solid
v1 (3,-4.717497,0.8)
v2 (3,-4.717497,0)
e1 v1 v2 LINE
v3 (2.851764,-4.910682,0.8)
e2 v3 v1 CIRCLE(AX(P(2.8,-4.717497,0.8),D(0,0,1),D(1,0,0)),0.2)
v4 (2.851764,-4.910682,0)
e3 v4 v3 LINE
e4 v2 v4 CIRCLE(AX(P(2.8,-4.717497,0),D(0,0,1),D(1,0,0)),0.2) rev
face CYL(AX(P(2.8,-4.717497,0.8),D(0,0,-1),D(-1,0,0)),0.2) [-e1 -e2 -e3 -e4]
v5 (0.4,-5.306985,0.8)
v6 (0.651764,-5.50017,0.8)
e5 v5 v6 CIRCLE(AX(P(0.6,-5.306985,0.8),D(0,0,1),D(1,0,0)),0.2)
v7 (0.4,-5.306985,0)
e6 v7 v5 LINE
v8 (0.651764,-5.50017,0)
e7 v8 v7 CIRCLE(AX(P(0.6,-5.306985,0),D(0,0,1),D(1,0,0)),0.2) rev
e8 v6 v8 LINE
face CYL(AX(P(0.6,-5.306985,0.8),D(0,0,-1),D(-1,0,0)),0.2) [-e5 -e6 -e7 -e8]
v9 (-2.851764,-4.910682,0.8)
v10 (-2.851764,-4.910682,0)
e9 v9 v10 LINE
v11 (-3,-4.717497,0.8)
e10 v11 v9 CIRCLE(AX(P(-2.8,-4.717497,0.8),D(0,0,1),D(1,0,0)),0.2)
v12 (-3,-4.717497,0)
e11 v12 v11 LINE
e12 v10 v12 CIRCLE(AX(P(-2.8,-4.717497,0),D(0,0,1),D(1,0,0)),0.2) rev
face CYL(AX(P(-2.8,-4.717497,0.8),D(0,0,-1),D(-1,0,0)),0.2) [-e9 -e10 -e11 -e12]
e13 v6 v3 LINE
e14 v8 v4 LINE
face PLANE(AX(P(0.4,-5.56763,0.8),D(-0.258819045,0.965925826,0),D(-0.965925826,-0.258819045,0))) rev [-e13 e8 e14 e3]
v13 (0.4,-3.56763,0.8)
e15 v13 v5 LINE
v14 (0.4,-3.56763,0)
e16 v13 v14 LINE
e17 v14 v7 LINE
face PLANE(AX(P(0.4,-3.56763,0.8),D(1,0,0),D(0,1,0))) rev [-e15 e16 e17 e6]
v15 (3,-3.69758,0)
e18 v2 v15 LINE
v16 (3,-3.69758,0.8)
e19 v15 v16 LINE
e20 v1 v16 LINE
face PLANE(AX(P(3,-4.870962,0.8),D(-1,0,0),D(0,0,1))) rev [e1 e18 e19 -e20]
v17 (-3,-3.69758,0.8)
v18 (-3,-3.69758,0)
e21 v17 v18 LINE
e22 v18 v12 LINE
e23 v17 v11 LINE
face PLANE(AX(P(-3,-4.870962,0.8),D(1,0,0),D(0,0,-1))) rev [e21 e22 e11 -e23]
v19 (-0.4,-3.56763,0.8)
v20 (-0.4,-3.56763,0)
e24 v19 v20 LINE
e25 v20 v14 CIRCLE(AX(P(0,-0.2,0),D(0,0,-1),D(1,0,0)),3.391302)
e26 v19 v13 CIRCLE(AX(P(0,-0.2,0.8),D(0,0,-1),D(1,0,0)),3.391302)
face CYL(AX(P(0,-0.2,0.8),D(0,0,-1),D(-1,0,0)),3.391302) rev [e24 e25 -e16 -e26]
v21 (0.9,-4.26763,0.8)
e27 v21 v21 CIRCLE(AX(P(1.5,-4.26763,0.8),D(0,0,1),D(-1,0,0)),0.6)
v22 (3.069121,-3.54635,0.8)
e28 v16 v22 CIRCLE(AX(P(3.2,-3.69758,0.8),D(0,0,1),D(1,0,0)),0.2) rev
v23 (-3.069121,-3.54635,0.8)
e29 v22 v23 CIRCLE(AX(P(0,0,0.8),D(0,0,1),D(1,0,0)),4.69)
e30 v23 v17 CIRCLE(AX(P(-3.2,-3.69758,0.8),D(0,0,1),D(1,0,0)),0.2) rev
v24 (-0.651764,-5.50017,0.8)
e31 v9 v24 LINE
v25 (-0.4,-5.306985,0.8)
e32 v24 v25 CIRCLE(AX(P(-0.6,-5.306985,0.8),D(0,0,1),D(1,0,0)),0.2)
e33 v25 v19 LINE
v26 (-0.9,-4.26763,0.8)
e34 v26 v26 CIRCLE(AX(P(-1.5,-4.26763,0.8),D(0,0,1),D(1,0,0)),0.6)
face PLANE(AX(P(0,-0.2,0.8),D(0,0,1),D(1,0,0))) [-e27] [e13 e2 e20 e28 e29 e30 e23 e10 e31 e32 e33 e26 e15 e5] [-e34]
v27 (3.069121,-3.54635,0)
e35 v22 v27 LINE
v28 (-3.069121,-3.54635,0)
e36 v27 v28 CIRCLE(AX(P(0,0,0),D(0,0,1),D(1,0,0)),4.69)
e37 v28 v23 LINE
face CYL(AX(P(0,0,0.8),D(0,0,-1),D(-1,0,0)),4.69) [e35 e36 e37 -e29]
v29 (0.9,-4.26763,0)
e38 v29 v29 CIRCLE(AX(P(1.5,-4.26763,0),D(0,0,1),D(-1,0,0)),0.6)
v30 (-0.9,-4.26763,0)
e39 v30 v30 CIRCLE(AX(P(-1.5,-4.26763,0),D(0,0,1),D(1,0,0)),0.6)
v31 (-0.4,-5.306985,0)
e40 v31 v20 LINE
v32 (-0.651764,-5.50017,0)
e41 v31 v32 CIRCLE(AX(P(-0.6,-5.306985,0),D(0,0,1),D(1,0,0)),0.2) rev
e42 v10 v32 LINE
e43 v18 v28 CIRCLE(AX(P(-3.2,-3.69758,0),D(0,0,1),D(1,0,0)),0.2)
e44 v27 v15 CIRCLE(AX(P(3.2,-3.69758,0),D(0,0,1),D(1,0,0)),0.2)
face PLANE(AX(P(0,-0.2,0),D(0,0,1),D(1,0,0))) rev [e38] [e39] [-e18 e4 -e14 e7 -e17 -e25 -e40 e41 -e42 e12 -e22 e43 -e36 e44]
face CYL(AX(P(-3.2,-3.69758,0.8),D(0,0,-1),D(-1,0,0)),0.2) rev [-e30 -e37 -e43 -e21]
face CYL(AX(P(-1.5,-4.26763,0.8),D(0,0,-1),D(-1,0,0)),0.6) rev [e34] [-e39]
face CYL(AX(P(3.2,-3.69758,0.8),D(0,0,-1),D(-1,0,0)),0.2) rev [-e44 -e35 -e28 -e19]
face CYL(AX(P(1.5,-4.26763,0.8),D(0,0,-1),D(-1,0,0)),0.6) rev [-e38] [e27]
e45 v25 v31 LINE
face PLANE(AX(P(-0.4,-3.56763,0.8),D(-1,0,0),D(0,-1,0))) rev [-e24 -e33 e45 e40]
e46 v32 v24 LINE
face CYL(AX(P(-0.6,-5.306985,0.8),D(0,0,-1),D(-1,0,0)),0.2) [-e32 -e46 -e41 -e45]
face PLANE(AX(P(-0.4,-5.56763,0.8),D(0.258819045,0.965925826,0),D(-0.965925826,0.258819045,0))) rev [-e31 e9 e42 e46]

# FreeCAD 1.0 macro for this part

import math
import FreeCAD as App
import Part
import Sketcher

V = App.Vector
Q = App.Units.Quantity


def edges_at(feature, points):
    """Names of the edges that pass closest to the given points."""
    edges = feature.Shape.Edges
    near = lambda p: min(range(len(edges)), key=lambda i: edges[i].distToShape(Part.Vertex(*p))[0])
    return sorted({f"Edge{near(p) + 1}" for p in points})

doc = App.newDocument("Part")
body = doc.addObject("PartDesign::Body", "Body")

# Sketch on XY plane
sketch1 = body.newObject("Sketcher::SketchObject", "Sketch")
sketch1.AttachmentSupport = (doc.getObject("XY_Plane"), [""])
sketch1.MapMode = "FlatFace"
sketch1.addGeometry(Part.LineSegment(V(-0.4, -5.6, 0), V(-0.4, -3.6, 0)), False)
sketch1.addGeometry(Part.ArcOfCircle(Part.Circle(V(0, -0.2, 0), V(0, 0, 1), 3.4), math.radians(-83), math.radians(263)), False)
sketch1.addGeometry(Part.LineSegment(V(0.4, -3.6, 0), V(0.4, -5.6, 0)), False)
sketch1.addGeometry(Part.LineSegment(V(0.4, -5.6, 0), V(3, -4.9, 0)), False)
sketch1.addGeometry(Part.LineSegment(V(3, -4.9, 0), V(3, -3.6, 0)), False)
sketch1.addGeometry(Part.ArcOfCircle(Part.Circle(V(0, 0, 0), V(0, 0, 1), 4.7), math.radians(-50), math.radians(230)), False)
sketch1.addGeometry(Part.LineSegment(V(-3, -3.6, 0), V(-3, -4.9, 0)), False)
sketch1.addGeometry(Part.LineSegment(V(-3, -4.9, 0), V(-0.4, -5.6, 0)), False)
sketch1.addGeometry(Part.Circle(V(1.5, -4.3, 0), V(0, 0, 1), 0.6), False)
sketch1.addGeometry(Part.Circle(V(-1.5, -4.3, 0), V(0, 0, 1), 0.6), False)
sketch1.addConstraint(Sketcher.Constraint("Coincident", 0, 2, 1, 2))
sketch1.addConstraint(Sketcher.Constraint("Coincident", 1, 1, 2, 1))
sketch1.addConstraint(Sketcher.Constraint("Coincident", 2, 2, 3, 1))
sketch1.addConstraint(Sketcher.Constraint("Coincident", 3, 2, 4, 1))
sketch1.addConstraint(Sketcher.Constraint("Coincident", 4, 2, 5, 1))
sketch1.addConstraint(Sketcher.Constraint("Coincident", 5, 2, 6, 1))
sketch1.addConstraint(Sketcher.Constraint("Coincident", 6, 2, 7, 1))
sketch1.addConstraint(Sketcher.Constraint("Coincident", 7, 2, 0, 1))
sketch1.addConstraint(Sketcher.Constraint("Vertical", 0))
sketch1.addConstraint(Sketcher.Constraint("Vertical", 2))
sketch1.addConstraint(Sketcher.Constraint("Vertical", 4))
sketch1.addConstraint(Sketcher.Constraint("Vertical", 6))
sketch1.addConstraint(Sketcher.Constraint("Coincident", 5, 3, -1, 1))
sketch1.addConstraint(Sketcher.Constraint("Equal", 8, 9))
sketch1.addConstraint(Sketcher.Constraint("Symmetric", 8, 3, 9, 3, -2))
sketch1.addConstraint(Sketcher.Constraint("Symmetric", 0, 2, 1, 1, -2))
sketch1.addConstraint(Sketcher.Constraint("Symmetric", 3, 2, 6, 2, -2))
sketch1.addConstraint(Sketcher.Constraint("Horizontal", 2, 2, 7, 2))
sketch1.addConstraint(Sketcher.Constraint("Diameter", 8, Q("1.2 mm")))
sketch1.addConstraint(Sketcher.Constraint("DistanceY", 0, 1, 0, 2, Q("2 mm")))
sketch1.addConstraint(Sketcher.Constraint("Angle", 3, Q("15 deg")))
sketch1.addConstraint(Sketcher.Constraint("Radius", 5, Q("4.69 mm")))
sketch1.addConstraint(Sketcher.Constraint("DistanceX", -1, 1, 3, 2, Q("3 mm")))
sketch1.addConstraint(Sketcher.Constraint("DistanceX", 9, 3, 8, 3, Q("3 mm")))
sketch1.addConstraint(Sketcher.Constraint("DistanceY", 1, 3, -1, 1, Q("0.2 mm")))
sketch1.addConstraint(Sketcher.Constraint("DistanceX", 0, 2, -1, 1, Q("0.4 mm")))
sketch1.addConstraint(Sketcher.Constraint("DistanceY", 9, 3, 0, 2, Q("0.7 mm")))
sketch1.addConstraint(Sketcher.Constraint("Radius", 1, Q("3.391302 mm")))
pad1 = body.newObject("PartDesign::Pad", "Pad")
pad1.Profile = sketch1
pad1.Length = 0.8
doc.recompute()

fillet = body.newObject("PartDesign::Fillet", "Fillet")
fillet.Base = (pad1, edges_at(pad1, [
    (-0.4, -5.568, 0.4),
    (-3, -4.871, 0.4),
    (-3, -3.605, 0.4),
    (3, -3.605, 0.4),
    (3, -4.871, 0.4),
    (0.4, -5.568, 0.4),
]))
fillet.Radius = 0.2

doc.recompute()
